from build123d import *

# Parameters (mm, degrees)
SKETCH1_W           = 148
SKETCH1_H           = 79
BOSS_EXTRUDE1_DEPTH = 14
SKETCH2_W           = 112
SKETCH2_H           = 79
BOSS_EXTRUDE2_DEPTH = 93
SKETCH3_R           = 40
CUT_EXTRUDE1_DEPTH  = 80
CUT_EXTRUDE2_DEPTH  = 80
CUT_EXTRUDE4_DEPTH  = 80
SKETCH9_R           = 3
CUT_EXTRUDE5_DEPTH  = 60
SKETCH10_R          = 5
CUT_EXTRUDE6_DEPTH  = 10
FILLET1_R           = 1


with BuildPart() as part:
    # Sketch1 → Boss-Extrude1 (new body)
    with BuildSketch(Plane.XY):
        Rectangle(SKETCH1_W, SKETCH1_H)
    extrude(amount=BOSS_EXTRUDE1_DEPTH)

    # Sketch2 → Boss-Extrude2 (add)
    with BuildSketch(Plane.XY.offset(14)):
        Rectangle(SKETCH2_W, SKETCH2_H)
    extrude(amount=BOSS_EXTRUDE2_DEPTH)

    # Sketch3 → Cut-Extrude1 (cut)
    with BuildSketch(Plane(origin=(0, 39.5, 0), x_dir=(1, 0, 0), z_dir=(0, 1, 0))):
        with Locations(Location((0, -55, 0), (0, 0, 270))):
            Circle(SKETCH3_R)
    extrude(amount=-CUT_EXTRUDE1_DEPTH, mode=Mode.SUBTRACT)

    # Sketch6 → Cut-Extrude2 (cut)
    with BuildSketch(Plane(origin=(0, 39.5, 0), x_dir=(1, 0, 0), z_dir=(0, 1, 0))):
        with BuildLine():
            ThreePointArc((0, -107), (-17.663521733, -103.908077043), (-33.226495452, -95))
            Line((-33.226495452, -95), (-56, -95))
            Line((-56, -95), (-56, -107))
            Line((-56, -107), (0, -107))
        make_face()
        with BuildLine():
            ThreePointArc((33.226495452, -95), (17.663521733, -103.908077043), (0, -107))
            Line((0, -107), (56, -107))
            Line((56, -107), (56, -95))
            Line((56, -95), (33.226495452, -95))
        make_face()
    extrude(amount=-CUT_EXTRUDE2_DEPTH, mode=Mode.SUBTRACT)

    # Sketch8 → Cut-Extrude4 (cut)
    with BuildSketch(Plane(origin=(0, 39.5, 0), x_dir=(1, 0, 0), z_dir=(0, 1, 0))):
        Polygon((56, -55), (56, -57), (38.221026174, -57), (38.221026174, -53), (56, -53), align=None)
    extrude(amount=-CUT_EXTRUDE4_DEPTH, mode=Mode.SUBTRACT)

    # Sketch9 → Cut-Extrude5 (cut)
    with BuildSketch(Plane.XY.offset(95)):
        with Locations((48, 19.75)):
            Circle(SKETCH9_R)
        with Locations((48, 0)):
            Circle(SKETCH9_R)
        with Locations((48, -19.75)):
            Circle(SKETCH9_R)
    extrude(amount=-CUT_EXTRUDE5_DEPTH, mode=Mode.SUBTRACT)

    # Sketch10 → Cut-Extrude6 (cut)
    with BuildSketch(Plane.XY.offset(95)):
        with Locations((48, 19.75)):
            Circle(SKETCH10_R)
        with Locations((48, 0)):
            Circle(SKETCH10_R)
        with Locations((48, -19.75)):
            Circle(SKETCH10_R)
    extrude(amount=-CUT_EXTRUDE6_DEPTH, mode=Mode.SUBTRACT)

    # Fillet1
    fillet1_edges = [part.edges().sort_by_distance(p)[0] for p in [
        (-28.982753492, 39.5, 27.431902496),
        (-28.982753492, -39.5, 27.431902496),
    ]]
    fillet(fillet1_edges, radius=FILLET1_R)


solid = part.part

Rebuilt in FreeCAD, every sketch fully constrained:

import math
import FreeCAD as App
import Part
import Sketcher

V = App.Vector


def edges_at(feature, points):
    """Names of the edges that pass closest to the given points."""
    edges = feature.Shape.Edges
    near = lambda p: min(range(len(edges)), key=lambda i: edges[i].distToShape(Part.Vertex(*p))[0])
    return sorted({f"Edge{near(p) + 1}" for p in points})


def add_polygon(sketch, points):
    """Adds a closed chain of lines whose ends are joined by coincident constraints."""
    first, n = sketch.GeometryCount, len(points)
    for a, b in zip(points, points[1:] + points[:1]):
        sketch.addGeometry(Part.LineSegment(App.Vector(*a, 0), App.Vector(*b, 0)), False)
    for i in range(n):
        sketch.addConstraint(Sketcher.Constraint("Coincident", first + i, 2, first + (i + 1) % n, 1))

doc = App.newDocument("Part")
body = doc.addObject("PartDesign::Body", "Body")

# Sketch on XY plane
sketch1 = body.newObject("Sketcher::SketchObject", "Sketch")
sketch1.AttachmentSupport = (doc.getObject("XY_Plane"), [""])
sketch1.MapMode = "FlatFace"
add_polygon(sketch1, [(-74, 39.5), (-74, -39.5), (74, -39.5), (74, 39.5)])  # lines 0-3
sketch1.addConstraint([
    Sketcher.Constraint("Vertical", 0),
    Sketcher.Constraint("Horizontal", 1),
    Sketcher.Constraint("Vertical", 2),
    Sketcher.Constraint("Horizontal", 3),
    Sketcher.Constraint("Symmetric", 0, 2, 2, 2, -1, 1),
    Sketcher.Constraint("DistanceX", 1, 1, 1, 2, 148.0),
    Sketcher.Constraint("DistanceY", 0, 2, 0, 1, 79.0),
])
pad1 = body.newObject("PartDesign::Pad", "Pad")
pad1.Profile = sketch1
pad1.Length = 14

# Sketch on XY plane
sketch2 = body.newObject("Sketcher::SketchObject", "Sketch001")
sketch2.AttachmentSupport = (doc.getObject("XY_Plane"), [""])
sketch2.MapMode = "FlatFace"
sketch2.AttachmentOffset = App.Placement(V(0, 0, 14), App.Rotation())
add_polygon(sketch2, [(-56, 39.5), (-56, -39.5), (56, -39.5), (56, 39.5)])  # lines 0-3
sketch2.addConstraint([
    Sketcher.Constraint("Vertical", 0),
    Sketcher.Constraint("Horizontal", 1),
    Sketcher.Constraint("Vertical", 2),
    Sketcher.Constraint("Horizontal", 3),
    Sketcher.Constraint("Symmetric", 0, 2, 2, 2, -1, 1),
    Sketcher.Constraint("DistanceX", 1, 1, 1, 2, 112.0),
    Sketcher.Constraint("DistanceY", 0, 2, 0, 1, 79.0),
])
pad2 = body.newObject("PartDesign::Pad", "Pad001")
pad2.Profile = sketch2
pad2.Length = 93

# Sketch on XZ plane
sketch3 = body.newObject("Sketcher::SketchObject", "Sketch002")
sketch3.AttachmentSupport = (doc.getObject("XZ_Plane"), [""])
sketch3.MapMode = "FlatFace"
sketch3.AttachmentOffset = App.Placement(V(0, 0, -39.5), App.Rotation())
sketch3.addGeometry(Part.Circle(V(0, 55, 0), V(0, 0, 1), 40), False)
sketch3.addConstraint([
    Sketcher.Constraint("PointOnObject", 0, 3, -2),
    Sketcher.Constraint("Diameter", 0, 80.0),
    Sketcher.Constraint("DistanceY", -1, 1, 0, 3, 55.0),
])
pocket1 = body.newObject("PartDesign::Pocket", "Pocket")
pocket1.Profile = sketch3
pocket1.Length = 80
pocket1.Reversed = True

# Sketch on XZ plane
sketch4 = body.newObject("Sketcher::SketchObject", "Sketch003")
sketch4.AttachmentSupport = (doc.getObject("XZ_Plane"), [""])
sketch4.MapMode = "FlatFace"
sketch4.AttachmentOffset = App.Placement(V(0, 0, -39.5), App.Rotation())
sketch4.addGeometry([
    Part.ArcOfCircle(Part.Circle(V(0, 55, 0), V(0, 0, 1), 52), math.radians(90), math.radians(129.715137)),  # 0
    Part.LineSegment(V(-33.226495, 95, 0), V(-56, 95, 0)),  # 1
    Part.LineSegment(V(-56, 95, 0), V(-56, 107, 0)),  # 2
    Part.LineSegment(V(-56, 107, 0), V(0, 107, 0)),  # 3
    Part.ArcOfCircle(Part.Circle(V(0, 55, 0), V(0, 0, 1), 52), math.radians(50.284863), math.radians(90)),  # 4
    Part.LineSegment(V(0, 107, 0), V(56, 107, 0)),  # 5
    Part.LineSegment(V(56, 107, 0), V(56, 95, 0)),  # 6
    Part.LineSegment(V(56, 95, 0), V(33.226495, 95, 0)),  # 7
], False)
sketch4.addConstraint([
    Sketcher.Constraint("Coincident", 0, 2, 1, 1),
    Sketcher.Constraint("Coincident", 1, 2, 2, 1),
    Sketcher.Constraint("Coincident", 2, 2, 3, 1),
    Sketcher.Constraint("Tangent", 3, 2, 0, 1),
    Sketcher.Constraint("Tangent", 4, 2, 5, 1),
    Sketcher.Constraint("Coincident", 5, 2, 6, 1),
    Sketcher.Constraint("Coincident", 6, 2, 7, 1),
    Sketcher.Constraint("Coincident", 7, 2, 4, 1),
    Sketcher.Constraint("Horizontal", 1),
    Sketcher.Constraint("Vertical", 2),
    Sketcher.Constraint("Horizontal", 3),
    Sketcher.Constraint("Horizontal", 5),
    Sketcher.Constraint("Vertical", 6),
    Sketcher.Constraint("Horizontal", 7),
    Sketcher.Constraint("Coincident", 4, 3, 0, 3),
    Sketcher.Constraint("Equal", 0, 4),
    Sketcher.Constraint("Symmetric", 1, 2, 6, 2, -2),
    Sketcher.Constraint("PointOnObject", 0, 3, -2),
    Sketcher.Constraint("Radius", 0, 52.0),
    Sketcher.Constraint("DistanceX", 3, 1, 3, 2, 56.0),
    Sketcher.Constraint("DistanceY", 2, 1, 2, 2, 12.0),
    Sketcher.Constraint("DistanceY", -1, 1, 0, 3, 55.0),
])
pocket2 = body.newObject("PartDesign::Pocket", "Pocket001")
pocket2.Profile = sketch4
pocket2.Length = 80
pocket2.Reversed = True

# Sketch on XZ plane
sketch5 = body.newObject("Sketcher::SketchObject", "Sketch004")
sketch5.AttachmentSupport = (doc.getObject("XZ_Plane"), [""])
sketch5.MapMode = "FlatFace"
sketch5.AttachmentOffset = App.Placement(V(0, 0, -39.5), App.Rotation())
add_polygon(sketch5, [(56, 57), (56, 53), (38.221026, 53), (38.221026, 57)])  # lines 0-3
sketch5.addConstraint([
    Sketcher.Constraint("Vertical", 0),
    Sketcher.Constraint("Horizontal", 1),
    Sketcher.Constraint("Vertical", 2),
    Sketcher.Constraint("Horizontal", 3),
    Sketcher.Constraint("DistanceY", 0, 2, 0, 1, 4.0),
    Sketcher.Constraint("DistanceX", -1, 1, 0, 2, 56.0),
    Sketcher.Constraint("DistanceY", -1, 1, 0, 2, 53.0),
    Sketcher.Constraint("DistanceX", 1, 2, 1, 1, 17.778974),
])
pocket3 = body.newObject("PartDesign::Pocket", "Pocket002")
pocket3.Profile = sketch5
pocket3.Length = 80
pocket3.Reversed = True

# Sketch on XY plane
sketch6 = body.newObject("Sketcher::SketchObject", "Sketch005")
sketch6.AttachmentSupport = (doc.getObject("XY_Plane"), [""])
sketch6.MapMode = "FlatFace"
sketch6.AttachmentOffset = App.Placement(V(0, 0, 95), App.Rotation())
sketch6.addGeometry([
    Part.Circle(V(48, 19.75, 0), V(0, 0, 1), 3),
    Part.Circle(V(48, 0, 0), V(0, 0, 1), 3),
    Part.Circle(V(48, -19.75, 0), V(0, 0, 1), 3),
], False)
sketch6.addConstraint([
    Sketcher.Constraint("Equal", 0, 1),
    Sketcher.Constraint("Equal", 1, 2),
    Sketcher.Constraint("Symmetric", 0, 3, 2, 3, -1),
    Sketcher.Constraint("PointOnObject", 1, 3, -1),
    Sketcher.Constraint("Vertical", 0, 3, 1, 3),
    Sketcher.Constraint("Diameter", 0, 6.0),
    Sketcher.Constraint("DistanceX", -1, 1, 0, 3, 48.0),
    Sketcher.Constraint("DistanceY", 2, 3, 0, 3, 39.5),
])
pocket4 = body.newObject("PartDesign::Pocket", "Pocket003")
pocket4.Profile = sketch6
pocket4.Length = 60

# Sketch on XY plane
sketch7 = body.newObject("Sketcher::SketchObject", "Sketch006")
sketch7.AttachmentSupport = (doc.getObject("XY_Plane"), [""])
sketch7.MapMode = "FlatFace"
sketch7.AttachmentOffset = App.Placement(V(0, 0, 95), App.Rotation())
sketch7.addGeometry([
    Part.Circle(V(48, 19.75, 0), V(0, 0, 1), 5),
    Part.Circle(V(48, 0, 0), V(0, 0, 1), 5),
    Part.Circle(V(48, -19.75, 0), V(0, 0, 1), 5),
], False)
sketch7.addConstraint([
    Sketcher.Constraint("Equal", 0, 1),
    Sketcher.Constraint("Equal", 1, 2),
    Sketcher.Constraint("Symmetric", 0, 3, 2, 3, -1),
    Sketcher.Constraint("PointOnObject", 1, 3, -1),
    Sketcher.Constraint("Vertical", 0, 3, 1, 3),
    Sketcher.Constraint("Diameter", 0, 10.0),
    Sketcher.Constraint("DistanceX", -1, 1, 0, 3, 48.0),
    Sketcher.Constraint("DistanceY", 2, 3, 0, 3, 39.5),
])
pocket5 = body.newObject("PartDesign::Pocket", "Pocket004")
pocket5.Profile = sketch7
pocket5.Length = 10
doc.recompute()

fillet = body.newObject("PartDesign::Fillet", "Fillet")
fillet.Base = (pocket5, edges_at(pocket5, [(-28.983, 39.5, 27.432), (-28.983, -39.5, 27.432)]))
fillet.Radius = 1

doc.recompute()
